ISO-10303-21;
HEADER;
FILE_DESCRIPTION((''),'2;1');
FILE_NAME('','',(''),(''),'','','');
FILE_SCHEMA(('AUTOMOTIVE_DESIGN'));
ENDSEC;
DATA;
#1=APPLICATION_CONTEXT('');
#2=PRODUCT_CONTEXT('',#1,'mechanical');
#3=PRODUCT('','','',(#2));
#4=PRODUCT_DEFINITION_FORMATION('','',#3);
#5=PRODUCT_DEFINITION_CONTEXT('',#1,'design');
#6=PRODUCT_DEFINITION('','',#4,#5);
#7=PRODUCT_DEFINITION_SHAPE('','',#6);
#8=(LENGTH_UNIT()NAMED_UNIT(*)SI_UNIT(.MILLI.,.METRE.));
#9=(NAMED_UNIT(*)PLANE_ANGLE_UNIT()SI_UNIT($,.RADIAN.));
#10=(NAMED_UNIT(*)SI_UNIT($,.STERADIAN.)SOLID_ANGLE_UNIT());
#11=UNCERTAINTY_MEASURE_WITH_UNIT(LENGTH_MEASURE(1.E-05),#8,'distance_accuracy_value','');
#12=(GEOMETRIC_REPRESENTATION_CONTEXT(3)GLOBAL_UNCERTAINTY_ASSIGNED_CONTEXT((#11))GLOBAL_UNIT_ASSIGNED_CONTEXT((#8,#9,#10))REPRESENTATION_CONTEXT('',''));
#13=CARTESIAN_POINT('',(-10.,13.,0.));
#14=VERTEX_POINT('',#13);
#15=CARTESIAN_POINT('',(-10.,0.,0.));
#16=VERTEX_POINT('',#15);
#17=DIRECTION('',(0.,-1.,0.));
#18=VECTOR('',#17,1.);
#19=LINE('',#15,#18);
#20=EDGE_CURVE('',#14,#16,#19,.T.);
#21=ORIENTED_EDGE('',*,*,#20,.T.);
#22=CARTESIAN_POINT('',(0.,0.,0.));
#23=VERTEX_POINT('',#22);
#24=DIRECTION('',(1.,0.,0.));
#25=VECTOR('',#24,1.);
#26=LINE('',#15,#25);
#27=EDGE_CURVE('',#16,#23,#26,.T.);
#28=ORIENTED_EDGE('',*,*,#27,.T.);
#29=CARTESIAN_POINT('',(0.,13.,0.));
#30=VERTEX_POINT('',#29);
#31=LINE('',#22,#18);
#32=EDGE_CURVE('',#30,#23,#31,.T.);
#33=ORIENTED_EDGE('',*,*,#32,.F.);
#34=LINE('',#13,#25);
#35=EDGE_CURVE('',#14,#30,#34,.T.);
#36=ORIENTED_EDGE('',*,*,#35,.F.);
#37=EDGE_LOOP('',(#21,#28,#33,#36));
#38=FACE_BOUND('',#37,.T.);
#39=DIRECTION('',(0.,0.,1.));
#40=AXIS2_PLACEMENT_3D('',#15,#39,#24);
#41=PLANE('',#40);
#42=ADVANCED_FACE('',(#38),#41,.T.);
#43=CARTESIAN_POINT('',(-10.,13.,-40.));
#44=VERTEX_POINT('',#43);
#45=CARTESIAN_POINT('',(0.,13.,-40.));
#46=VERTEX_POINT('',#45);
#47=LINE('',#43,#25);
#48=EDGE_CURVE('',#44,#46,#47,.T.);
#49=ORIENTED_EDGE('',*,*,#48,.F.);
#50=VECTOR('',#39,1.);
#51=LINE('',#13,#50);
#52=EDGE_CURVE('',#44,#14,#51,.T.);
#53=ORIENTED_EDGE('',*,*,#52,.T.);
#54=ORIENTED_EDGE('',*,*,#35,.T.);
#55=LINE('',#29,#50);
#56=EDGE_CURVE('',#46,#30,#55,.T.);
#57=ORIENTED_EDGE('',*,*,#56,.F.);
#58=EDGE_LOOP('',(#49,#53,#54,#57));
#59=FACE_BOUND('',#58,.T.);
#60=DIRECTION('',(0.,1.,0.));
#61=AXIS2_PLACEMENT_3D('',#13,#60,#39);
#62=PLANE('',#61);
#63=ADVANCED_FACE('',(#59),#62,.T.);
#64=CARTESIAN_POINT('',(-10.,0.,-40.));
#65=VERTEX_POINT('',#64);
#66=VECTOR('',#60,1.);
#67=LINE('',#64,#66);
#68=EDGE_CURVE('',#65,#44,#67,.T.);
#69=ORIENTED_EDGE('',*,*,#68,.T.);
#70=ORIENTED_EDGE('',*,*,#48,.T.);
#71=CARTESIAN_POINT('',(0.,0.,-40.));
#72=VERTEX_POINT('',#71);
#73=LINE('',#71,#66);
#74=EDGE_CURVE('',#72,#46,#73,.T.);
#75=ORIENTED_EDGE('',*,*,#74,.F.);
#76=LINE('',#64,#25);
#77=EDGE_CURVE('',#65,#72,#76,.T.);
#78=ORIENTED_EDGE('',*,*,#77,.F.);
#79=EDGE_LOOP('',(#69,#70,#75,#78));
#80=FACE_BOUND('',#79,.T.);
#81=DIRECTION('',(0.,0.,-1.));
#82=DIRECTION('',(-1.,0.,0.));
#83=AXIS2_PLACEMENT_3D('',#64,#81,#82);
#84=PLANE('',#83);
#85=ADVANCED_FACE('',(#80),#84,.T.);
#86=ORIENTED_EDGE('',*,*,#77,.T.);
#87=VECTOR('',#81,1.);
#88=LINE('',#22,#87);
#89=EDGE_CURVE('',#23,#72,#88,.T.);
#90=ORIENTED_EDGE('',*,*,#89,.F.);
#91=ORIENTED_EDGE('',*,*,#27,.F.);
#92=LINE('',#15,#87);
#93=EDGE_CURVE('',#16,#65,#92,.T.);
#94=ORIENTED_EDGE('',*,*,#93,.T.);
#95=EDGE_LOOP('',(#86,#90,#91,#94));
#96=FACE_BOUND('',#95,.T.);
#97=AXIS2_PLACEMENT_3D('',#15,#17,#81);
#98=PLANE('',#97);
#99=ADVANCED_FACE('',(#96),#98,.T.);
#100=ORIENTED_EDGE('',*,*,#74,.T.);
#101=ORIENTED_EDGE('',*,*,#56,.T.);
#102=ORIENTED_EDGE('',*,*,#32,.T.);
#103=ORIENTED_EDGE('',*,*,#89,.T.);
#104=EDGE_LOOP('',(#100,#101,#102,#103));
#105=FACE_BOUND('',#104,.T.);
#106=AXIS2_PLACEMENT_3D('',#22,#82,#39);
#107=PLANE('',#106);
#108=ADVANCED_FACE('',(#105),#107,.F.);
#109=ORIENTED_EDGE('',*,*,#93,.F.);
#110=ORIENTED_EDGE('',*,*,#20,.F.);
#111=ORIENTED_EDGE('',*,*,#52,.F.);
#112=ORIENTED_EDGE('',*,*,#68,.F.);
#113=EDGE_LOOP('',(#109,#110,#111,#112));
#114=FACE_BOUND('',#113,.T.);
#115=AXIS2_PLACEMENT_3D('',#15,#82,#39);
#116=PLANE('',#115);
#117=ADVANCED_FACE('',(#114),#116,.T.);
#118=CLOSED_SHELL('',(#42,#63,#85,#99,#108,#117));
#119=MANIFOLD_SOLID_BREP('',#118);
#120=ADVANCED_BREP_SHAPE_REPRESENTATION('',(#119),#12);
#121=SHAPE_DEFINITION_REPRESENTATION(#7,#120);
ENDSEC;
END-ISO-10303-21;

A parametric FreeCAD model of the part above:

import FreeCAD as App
import Part
import Sketcher

V = App.Vector
Q = App.Units.Quantity


def add_polygon(sketch, points):
    """Adds a closed chain of lines whose ends are joined by coincident constraints."""
    first, n = sketch.GeometryCount, len(points)
    for a, b in zip(points, points[1:] + points[:1]):
        sketch.addGeometry(Part.LineSegment(App.Vector(*a, 0), App.Vector(*b, 0)), False)
    for i in range(n):
        sketch.addConstraint(Sketcher.Constraint("Coincident", first + i, 2, first + (i + 1) % n, 1))

doc = App.newDocument("Part")
body = doc.addObject("PartDesign::Body", "Body")

# Sketch on YZ plane
sketch1 = body.newObject("Sketcher::SketchObject", "Sketch")
sketch1.AttachmentSupport = (doc.getObject("YZ_Plane"), [""])
sketch1.MapMode = "FlatFace"
add_polygon(sketch1, [(13, 0), (0, 0), (0, -40), (13, -40)])  # lines 0-3
sketch1.addConstraint(Sketcher.Constraint("Horizontal", 0))
sketch1.addConstraint(Sketcher.Constraint("Vertical", 1))
sketch1.addConstraint(Sketcher.Constraint("Horizontal", 2))
sketch1.addConstraint(Sketcher.Constraint("Vertical", 3))
sketch1.addConstraint(Sketcher.Constraint("Coincident", 0, 2, -1, 1))
sketch1.addConstraint(Sketcher.Constraint("DistanceX", 0, 2, 0, 1, Q("13 mm")))
sketch1.addConstraint(Sketcher.Constraint("DistanceY", 1, 2, 1, 1, Q("40 mm")))
pad1 = body.newObject("PartDesign::Pad", "Pad")
pad1.Profile = sketch1
pad1.Length = 10
pad1.Reversed = True

doc.recompute()
